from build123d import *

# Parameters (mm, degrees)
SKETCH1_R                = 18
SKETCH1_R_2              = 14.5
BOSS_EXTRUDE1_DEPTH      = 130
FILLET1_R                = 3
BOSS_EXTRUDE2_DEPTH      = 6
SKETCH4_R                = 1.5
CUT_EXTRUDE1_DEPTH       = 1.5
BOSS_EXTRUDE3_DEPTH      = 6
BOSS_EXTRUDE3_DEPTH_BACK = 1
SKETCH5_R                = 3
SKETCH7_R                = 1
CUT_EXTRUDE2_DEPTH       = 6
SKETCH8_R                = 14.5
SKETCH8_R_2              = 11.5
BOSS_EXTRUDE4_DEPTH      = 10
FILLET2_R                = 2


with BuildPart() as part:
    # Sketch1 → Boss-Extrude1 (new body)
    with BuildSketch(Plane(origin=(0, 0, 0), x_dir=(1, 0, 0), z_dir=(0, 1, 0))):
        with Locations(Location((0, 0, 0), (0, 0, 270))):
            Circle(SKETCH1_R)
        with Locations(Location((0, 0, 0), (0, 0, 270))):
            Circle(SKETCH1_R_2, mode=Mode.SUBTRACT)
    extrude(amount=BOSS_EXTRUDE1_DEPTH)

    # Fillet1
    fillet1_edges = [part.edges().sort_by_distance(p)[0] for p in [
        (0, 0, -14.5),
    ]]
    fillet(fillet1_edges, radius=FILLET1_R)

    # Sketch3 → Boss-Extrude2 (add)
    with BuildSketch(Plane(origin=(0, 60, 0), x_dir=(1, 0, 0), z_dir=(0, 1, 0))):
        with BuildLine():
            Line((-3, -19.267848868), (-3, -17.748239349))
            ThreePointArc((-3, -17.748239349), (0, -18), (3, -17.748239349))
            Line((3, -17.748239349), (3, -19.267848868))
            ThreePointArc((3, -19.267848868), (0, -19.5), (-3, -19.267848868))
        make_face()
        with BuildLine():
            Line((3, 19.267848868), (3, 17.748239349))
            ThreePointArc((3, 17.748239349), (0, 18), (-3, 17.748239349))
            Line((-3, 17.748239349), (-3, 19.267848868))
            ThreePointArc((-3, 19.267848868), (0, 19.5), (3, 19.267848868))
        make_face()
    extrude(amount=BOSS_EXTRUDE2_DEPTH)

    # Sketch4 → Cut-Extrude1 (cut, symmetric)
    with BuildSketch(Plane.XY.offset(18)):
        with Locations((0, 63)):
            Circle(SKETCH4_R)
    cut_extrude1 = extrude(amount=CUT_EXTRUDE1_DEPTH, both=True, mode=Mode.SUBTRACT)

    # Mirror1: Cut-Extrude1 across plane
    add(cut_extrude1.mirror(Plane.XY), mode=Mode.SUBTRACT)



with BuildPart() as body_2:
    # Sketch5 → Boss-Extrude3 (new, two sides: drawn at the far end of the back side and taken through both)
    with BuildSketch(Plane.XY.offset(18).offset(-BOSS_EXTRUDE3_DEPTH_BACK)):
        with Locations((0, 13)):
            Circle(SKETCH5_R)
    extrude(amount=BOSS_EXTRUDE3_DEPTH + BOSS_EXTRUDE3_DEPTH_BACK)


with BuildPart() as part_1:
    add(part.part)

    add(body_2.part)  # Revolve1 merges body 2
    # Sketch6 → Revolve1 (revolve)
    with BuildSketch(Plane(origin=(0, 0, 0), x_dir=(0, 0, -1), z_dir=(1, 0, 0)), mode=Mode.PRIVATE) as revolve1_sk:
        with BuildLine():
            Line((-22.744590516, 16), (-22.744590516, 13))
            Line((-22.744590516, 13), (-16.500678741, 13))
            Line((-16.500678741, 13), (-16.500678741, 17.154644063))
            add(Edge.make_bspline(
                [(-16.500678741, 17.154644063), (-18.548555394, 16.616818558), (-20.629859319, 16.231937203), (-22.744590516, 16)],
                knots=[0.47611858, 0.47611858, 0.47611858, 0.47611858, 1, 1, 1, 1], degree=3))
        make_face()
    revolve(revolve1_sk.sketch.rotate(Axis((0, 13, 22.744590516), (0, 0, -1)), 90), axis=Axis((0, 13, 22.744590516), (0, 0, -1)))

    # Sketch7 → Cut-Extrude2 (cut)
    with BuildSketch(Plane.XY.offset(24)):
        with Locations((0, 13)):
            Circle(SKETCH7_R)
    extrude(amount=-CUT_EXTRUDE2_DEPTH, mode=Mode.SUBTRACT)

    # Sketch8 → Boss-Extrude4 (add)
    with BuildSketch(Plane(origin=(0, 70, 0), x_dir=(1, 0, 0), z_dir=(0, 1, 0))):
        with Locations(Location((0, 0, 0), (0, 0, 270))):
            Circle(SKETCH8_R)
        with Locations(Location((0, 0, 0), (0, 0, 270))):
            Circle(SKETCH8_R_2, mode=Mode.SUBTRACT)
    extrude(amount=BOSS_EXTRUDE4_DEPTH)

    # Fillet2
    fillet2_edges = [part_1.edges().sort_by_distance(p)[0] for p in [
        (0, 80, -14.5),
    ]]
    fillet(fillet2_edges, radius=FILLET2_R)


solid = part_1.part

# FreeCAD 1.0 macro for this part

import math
import FreeCAD as App
import Part
import Sketcher
from FreeCAD import Vector


def edges_at(feature, points):
    """Names of the edges that pass closest to the given points."""
    edges = feature.Shape.Edges
    near = lambda p: min(range(len(edges)), key=lambda i: edges[i].distToShape(Part.Vertex(*p))[0])
    return sorted({f"Edge{near(p) + 1}" for p in points})

doc = App.newDocument("Part")
params = doc.addObject("Spreadsheet::Sheet", "Params")
for row, (alias, value) in enumerate([
    ("sketch1_diameter", "36 mm"),
    ("sketch1_diameter2", "29 mm"),
    ("pad1_length", "130 mm"),
    ("fillet_radius", "3 mm"),
    ("sketch2_radius", "18 mm"),
    ("sketch2_radius2", "19.5 mm"),
    ("pad2_length", "6 mm"),
    ("sketch3_diameter", "3 mm"),
    ("pocket1_length", "3 mm"),
    ("sketch4_diameter", "6 mm"),
    ("pad3_length", "6 mm"),
    ("pad3_length2", "1 mm"),
    ("sketch5_width", "3 mm"),
    ("revolution_angle", "360 deg"),
    ("sketch6_diameter", "2 mm"),
    ("pocket2_length", "6 mm"),
    ("sketch7_diameter", "29 mm"),
    ("sketch7_diameter2", "23 mm"),
    ("pad4_length", "10 mm"),
    ("fillet2_radius", "2 mm"),
], start=1):
    params.set(f"A{row}", alias)
    params.set(f"B{row}", "=" + value)
    params.setAlias(f"B{row}", alias)

body = doc.addObject("PartDesign::Body", "Body")

sketch1 = doc.addObject("Sketcher::SketchObject", "Sketch")
body.addObject(sketch1)
sketch1.AttachmentSupport = (doc.XZ_Plane, [""])
sketch1.MapMode = "FlatFace"
sketch1.addGeometry([
    Part.Circle(Vector(0, 0, 0), Vector(0, 0, 1), 18),
    Part.Circle(Vector(0, 0, 0), Vector(0, 0, 1), 14),
], False)
sketch1.addConstraint([
    Sketcher.Constraint("Coincident", 0, 3, -1, 1),
    Sketcher.Constraint("Coincident", 1, 3, -1, 1),
    Sketcher.Constraint("Diameter", 0, 36.0),
    Sketcher.Constraint("Diameter", 1, 29.0),
])
sketch1.setExpression("Constraints[2]", "Params.sketch1_diameter")
sketch1.setExpression("Constraints[3]", "Params.sketch1_diameter2")
pad1 = doc.addObject("PartDesign::Pad", "Pad")
body.addObject(pad1)
pad1.Profile = sketch1
pad1.setExpression("Length", "Params.pad1_length")
pad1.Reversed = True
doc.recompute()

fillet = doc.addObject("PartDesign::Fillet", "Fillet")
body.addObject(fillet)
fillet.Base = (pad1, edges_at(pad1, [(0, 0, -14.5)]))
fillet.setExpression("Radius", "Params.fillet_radius")

sketch2 = doc.addObject("Sketcher::SketchObject", "Sketch001")
body.addObject(sketch2)
sketch2.AttachmentSupport = (doc.XZ_Plane, [""])
sketch2.MapMode = "FlatFace"
sketch2.AttachmentOffset = App.Placement(Vector(0, 0, -60), App.Rotation())
sketch2.addGeometry([
    Part.LineSegment(Vector(-3, 17.7, 0), Vector(-3, 19.3, 0)),
    Part.ArcOfCircle(Part.Circle(Vector(0, 0, 0), Vector(0, 0, 1), 19.5), math.radians(81.15), math.radians(98.85)),
    Part.LineSegment(Vector(3, 19.3, 0), Vector(3, 17.7, 0)),
    Part.ArcOfCircle(Part.Circle(Vector(0, 0, 0), Vector(0, 0, 1), 18), math.radians(80.41), math.radians(99.59)),
    Part.LineSegment(Vector(3, -17.7, 0), Vector(3, -19.3, 0)),
    Part.ArcOfCircle(Part.Circle(Vector(0, 0, 0), Vector(0, 0, 1), 19.5), math.radians(-98.85), math.radians(-81.15)),
    Part.LineSegment(Vector(-3, -19.3, 0), Vector(-3, -17.7, 0)),
    Part.ArcOfCircle(Part.Circle(Vector(0, 0, 0), Vector(0, 0, 1), 18), math.radians(-99.59), math.radians(-80.41)),
], False)
sketch2.addConstraint([
    Sketcher.Constraint("Coincident", 0, 2, 1, 2),
    Sketcher.Constraint("Coincident", 1, 1, 2, 1),
    Sketcher.Constraint("Coincident", 2, 2, 3, 1),
    Sketcher.Constraint("Coincident", 3, 2, 0, 1),
    Sketcher.Constraint("Coincident", 4, 2, 5, 2),
    Sketcher.Constraint("Coincident", 5, 1, 6, 1),
    Sketcher.Constraint("Coincident", 6, 2, 7, 1),
    Sketcher.Constraint("Coincident", 7, 2, 4, 1),
    Sketcher.Constraint("Vertical", 0),
    Sketcher.Constraint("Vertical", 2),
    Sketcher.Constraint("Vertical", 4),
    Sketcher.Constraint("Vertical", 6),
    Sketcher.Constraint("Coincident", 1, 3, -1, 1),
    Sketcher.Constraint("Coincident", 3, 3, -1, 1),
    Sketcher.Constraint("Coincident", 5, 3, -1, 1),
    Sketcher.Constraint("Coincident", 7, 3, -1, 1),
    Sketcher.Constraint("Equal", 1, 5),
    Sketcher.Constraint("Equal", 3, 7),
    Sketcher.Constraint("Horizontal", 0, 2, 1, 1),
    Sketcher.Constraint("Horizontal", 4, 2, 5, 1),
    Sketcher.Constraint("Vertical", 2, 2, 4, 2),
    Sketcher.Constraint("Radius", 3, 18.0),
    Sketcher.Constraint("Radius", 1, 19.5),
    Sketcher.Constraint("DistanceX", 0, 2, -1, 1, 3.0),
])
sketch2.setExpression("Constraints[21]", "Params.sketch2_radius")
sketch2.setExpression("Constraints[22]", "Params.sketch2_radius2")
pad2 = doc.addObject("PartDesign::Pad", "Pad001")
body.addObject(pad2)
pad2.Profile = sketch2
pad2.setExpression("Length", "Params.pad2_length")
pad2.Reversed = True

sketch3 = doc.addObject("Sketcher::SketchObject", "Sketch002")
body.addObject(sketch3)
sketch3.AttachmentSupport = (doc.XY_Plane, [""])
sketch3.MapMode = "FlatFace"
sketch3.AttachmentOffset = App.Placement(Vector(0, 0, 18), App.Rotation())
sketch3.addGeometry(Part.Circle(Vector(0, 63, 0), Vector(0, 0, 1), 1.5), False)
sketch3.addConstraint([
    Sketcher.Constraint("PointOnObject", 0, 3, -2),
    Sketcher.Constraint("Diameter", 0, 3.0),
    Sketcher.Constraint("DistanceY", -1, 1, 0, 3, 63.0),
])
sketch3.setExpression("Constraints[1]", "Params.sketch3_diameter")
pocket1 = doc.addObject("PartDesign::Pocket", "Pocket")
body.addObject(pocket1)
pocket1.Profile = sketch3
pocket1.setExpression("Length", "Params.pocket1_length")
pocket1.Midplane = True
doc.recompute()

mirrored = doc.addObject("PartDesign::Mirrored", "Mirrored")
body.addObject(mirrored)
mirrored.Originals = [pocket1]
mirrored.MirrorPlane = (doc.XY_Plane, [""])
body.Tip = mirrored
body2 = doc.addObject("PartDesign::Body", "Body001")

sketch4 = doc.addObject("Sketcher::SketchObject", "Sketch003")
body2.addObject(sketch4)
sketch4.AttachmentSupport = (doc.getObject("XY_Plane001"), [""])
sketch4.MapMode = "FlatFace"
sketch4.AttachmentOffset = App.Placement(Vector(0, 0, 18), App.Rotation())
sketch4.addGeometry(Part.Circle(Vector(0, 13, 0), Vector(0, 0, 1), 3), False)
sketch4.addConstraint([
    Sketcher.Constraint("PointOnObject", 0, 3, -2),
    Sketcher.Constraint("Diameter", 0, 6.0),
    Sketcher.Constraint("DistanceY", -1, 1, 0, 3, 13.0),
])
sketch4.setExpression("Constraints[1]", "Params.sketch4_diameter")
pad3 = doc.addObject("PartDesign::Pad", "Pad002")
body2.addObject(pad3)
pad3.Profile = sketch4
pad3.Type = "TwoLengths"
pad3.setExpression("Length", "Params.pad3_length")
pad3.setExpression("Length2", "Params.pad3_length2")
doc.recompute()

boolean = doc.addObject("PartDesign::Boolean", "Boolean")
body.addObject(boolean)
boolean.Type = "Fuse"
boolean.addObjects([body2])

sketch5 = doc.addObject("Sketcher::SketchObject", "Sketch004")
body.addObject(sketch5)
sketch5.AttachmentSupport = (doc.YZ_Plane, [""])
sketch5.MapMode = "FlatFace"
sketch5.addGeometry([
    Part.LineSegment(Vector(16, 22.744591, 0), Vector(13, 22.744591, 0)),
    Part.LineSegment(Vector(13, 22.744591, 0), Vector(13, 16.500679, 0)),
    Part.LineSegment(Vector(13, 16.500679, 0), Vector(17.154644, 16.500679, 0)),
    Part.BSplineCurve([Vector(17.154644, 16.500679, 0), Vector(16.616819, 18.548555, 0), Vector(16.231937, 20.629859, 0), Vector(16, 22.744591, 0)], [4, 4], [0.47611858, 1], False, 3, [1, 1, 1, 1], False),
], False)
sketch5.addGeometry(Part.LineSegment(Vector(13, 22.744591, 0), Vector(13, 16.500679, 0)), True)
sketch5.addConstraint([
    Sketcher.Constraint("Block", 3),
    Sketcher.Constraint("Coincident", 0, 2, 1, 1),
    Sketcher.Constraint("Coincident", 1, 2, 2, 1),
    Sketcher.Constraint("Coincident", 2, 2, 3, 1),
    Sketcher.Constraint("Coincident", 3, 2, 0, 1),
    Sketcher.Constraint("Horizontal", 0),
    Sketcher.Constraint("Vertical", 1),
    Sketcher.Constraint("Horizontal", 2),
    Sketcher.Constraint("Vertical", 4),
    Sketcher.Constraint("Coincident", 4, 1, 0, 2),
    Sketcher.Constraint("Horizontal", 2, 2, 4, 2),
    Sketcher.Constraint("DistanceX", 0, 2, 0, 1, 3.0),
])
sketch5.setExpression("Constraints[11]", "Params.sketch5_width")
revolution = doc.addObject("PartDesign::Revolution", "Revolution")
body.addObject(revolution)
revolution.Profile = sketch5
revolution.ReferenceAxis = (sketch5, ["Axis0"])
revolution.setExpression("Angle", "Params.revolution_angle")

sketch6 = doc.addObject("Sketcher::SketchObject", "Sketch005")
body.addObject(sketch6)
sketch6.AttachmentSupport = (doc.XY_Plane, [""])
sketch6.MapMode = "FlatFace"
sketch6.AttachmentOffset = App.Placement(Vector(0, 0, 24), App.Rotation())
sketch6.addGeometry(Part.Circle(Vector(0, 13, 0), Vector(0, 0, 1), 1), False)
sketch6.addConstraint([
    Sketcher.Constraint("PointOnObject", 0, 3, -2),
    Sketcher.Constraint("Diameter", 0, 2.0),
    Sketcher.Constraint("DistanceY", -1, 1, 0, 3, 13.0),
])
sketch6.setExpression("Constraints[1]", "Params.sketch6_diameter")
pocket2 = doc.addObject("PartDesign::Pocket", "Pocket001")
body.addObject(pocket2)
pocket2.Profile = sketch6
pocket2.setExpression("Length", "Params.pocket2_length")

sketch7 = doc.addObject("Sketcher::SketchObject", "Sketch006")
body.addObject(sketch7)
sketch7.AttachmentSupport = (doc.XZ_Plane, [""])
sketch7.MapMode = "FlatFace"
sketch7.AttachmentOffset = App.Placement(Vector(0, 0, -70), App.Rotation())
sketch7.addGeometry([
    Part.Circle(Vector(0, 0, 0), Vector(0, 0, 1), 14),
    Part.Circle(Vector(0, 0, 0), Vector(0, 0, 1), 12),
], False)
sketch7.addConstraint([
    Sketcher.Constraint("Coincident", 0, 3, -1, 1),
    Sketcher.Constraint("Coincident", 1, 3, -1, 1),
    Sketcher.Constraint("Diameter", 0, 29.0),
    Sketcher.Constraint("Diameter", 1, 23.0),
])
sketch7.setExpression("Constraints[2]", "Params.sketch7_diameter")
sketch7.setExpression("Constraints[3]", "Params.sketch7_diameter2")
pad4 = doc.addObject("PartDesign::Pad", "Pad003")
body.addObject(pad4)
pad4.Profile = sketch7
pad4.setExpression("Length", "Params.pad4_length")
pad4.Reversed = True
doc.recompute()

fillet2 = doc.addObject("PartDesign::Fillet", "Fillet001")
body.addObject(fillet2)
fillet2.Base = (pad4, edges_at(pad4, [(0, 80, -14.5)]))
fillet2.setExpression("Radius", "Params.fillet2_radius")

doc.recompute()
